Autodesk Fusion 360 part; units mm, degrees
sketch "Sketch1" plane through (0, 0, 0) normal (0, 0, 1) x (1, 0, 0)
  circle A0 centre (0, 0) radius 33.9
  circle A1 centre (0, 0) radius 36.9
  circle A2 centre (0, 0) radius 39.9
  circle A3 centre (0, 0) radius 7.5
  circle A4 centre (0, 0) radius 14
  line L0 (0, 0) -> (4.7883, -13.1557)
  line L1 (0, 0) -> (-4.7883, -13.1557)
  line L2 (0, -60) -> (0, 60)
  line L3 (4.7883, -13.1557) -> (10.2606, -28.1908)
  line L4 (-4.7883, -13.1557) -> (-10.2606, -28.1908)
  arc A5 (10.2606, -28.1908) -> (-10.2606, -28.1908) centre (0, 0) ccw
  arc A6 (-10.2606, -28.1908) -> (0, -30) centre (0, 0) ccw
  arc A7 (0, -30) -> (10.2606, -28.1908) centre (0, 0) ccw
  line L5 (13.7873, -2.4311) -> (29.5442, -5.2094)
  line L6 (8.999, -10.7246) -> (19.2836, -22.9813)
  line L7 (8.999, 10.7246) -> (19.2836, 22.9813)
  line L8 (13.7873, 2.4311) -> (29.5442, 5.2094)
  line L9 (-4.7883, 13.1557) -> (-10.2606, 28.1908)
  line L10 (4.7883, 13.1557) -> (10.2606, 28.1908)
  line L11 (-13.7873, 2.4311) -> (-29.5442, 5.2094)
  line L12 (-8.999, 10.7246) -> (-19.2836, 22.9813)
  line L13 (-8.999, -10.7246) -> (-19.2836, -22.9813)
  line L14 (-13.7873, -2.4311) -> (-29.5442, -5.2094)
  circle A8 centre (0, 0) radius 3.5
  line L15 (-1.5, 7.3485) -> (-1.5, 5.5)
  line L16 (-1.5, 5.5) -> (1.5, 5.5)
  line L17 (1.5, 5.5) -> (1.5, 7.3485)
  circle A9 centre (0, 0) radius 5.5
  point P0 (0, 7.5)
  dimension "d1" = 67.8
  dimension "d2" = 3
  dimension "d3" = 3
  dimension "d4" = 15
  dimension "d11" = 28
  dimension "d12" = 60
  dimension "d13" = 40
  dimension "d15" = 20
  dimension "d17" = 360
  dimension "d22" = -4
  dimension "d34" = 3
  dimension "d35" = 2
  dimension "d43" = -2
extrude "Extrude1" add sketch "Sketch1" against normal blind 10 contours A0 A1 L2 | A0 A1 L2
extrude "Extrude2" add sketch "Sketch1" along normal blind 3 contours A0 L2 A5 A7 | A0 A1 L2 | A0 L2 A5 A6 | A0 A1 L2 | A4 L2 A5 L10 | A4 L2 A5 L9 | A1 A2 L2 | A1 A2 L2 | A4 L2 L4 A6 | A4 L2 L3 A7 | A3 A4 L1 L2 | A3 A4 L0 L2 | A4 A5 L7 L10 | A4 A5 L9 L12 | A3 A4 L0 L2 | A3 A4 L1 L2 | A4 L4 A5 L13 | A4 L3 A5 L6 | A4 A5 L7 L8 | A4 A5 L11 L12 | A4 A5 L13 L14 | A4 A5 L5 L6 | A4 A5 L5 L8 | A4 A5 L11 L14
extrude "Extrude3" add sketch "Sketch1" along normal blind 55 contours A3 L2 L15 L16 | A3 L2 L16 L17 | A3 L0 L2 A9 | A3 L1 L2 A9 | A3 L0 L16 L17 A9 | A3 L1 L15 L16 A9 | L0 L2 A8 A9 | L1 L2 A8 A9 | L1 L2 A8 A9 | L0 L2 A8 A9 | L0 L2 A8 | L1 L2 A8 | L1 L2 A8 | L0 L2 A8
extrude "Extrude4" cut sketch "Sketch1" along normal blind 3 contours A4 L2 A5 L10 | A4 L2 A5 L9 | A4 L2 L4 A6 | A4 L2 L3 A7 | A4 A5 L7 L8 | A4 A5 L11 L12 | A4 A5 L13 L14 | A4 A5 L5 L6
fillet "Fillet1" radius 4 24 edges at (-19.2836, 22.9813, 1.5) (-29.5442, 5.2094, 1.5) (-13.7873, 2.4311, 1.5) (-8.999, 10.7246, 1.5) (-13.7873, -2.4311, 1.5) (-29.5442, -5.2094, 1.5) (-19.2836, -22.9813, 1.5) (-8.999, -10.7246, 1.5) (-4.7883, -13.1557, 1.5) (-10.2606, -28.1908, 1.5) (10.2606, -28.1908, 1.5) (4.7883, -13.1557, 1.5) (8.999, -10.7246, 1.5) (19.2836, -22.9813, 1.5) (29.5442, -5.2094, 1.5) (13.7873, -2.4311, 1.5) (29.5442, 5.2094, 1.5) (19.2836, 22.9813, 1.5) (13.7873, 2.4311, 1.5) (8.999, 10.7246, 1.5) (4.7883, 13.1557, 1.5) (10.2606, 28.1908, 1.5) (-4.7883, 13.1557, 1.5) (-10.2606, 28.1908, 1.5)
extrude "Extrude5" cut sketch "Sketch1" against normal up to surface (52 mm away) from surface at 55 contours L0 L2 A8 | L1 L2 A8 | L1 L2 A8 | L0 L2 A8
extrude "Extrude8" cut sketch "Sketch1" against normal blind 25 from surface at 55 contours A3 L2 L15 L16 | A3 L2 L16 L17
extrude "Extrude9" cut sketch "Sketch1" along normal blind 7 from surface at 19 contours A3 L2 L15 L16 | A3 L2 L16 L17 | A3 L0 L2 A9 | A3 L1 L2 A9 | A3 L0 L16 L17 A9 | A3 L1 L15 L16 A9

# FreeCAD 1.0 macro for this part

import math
import FreeCAD as App
import Part
import Sketcher

V = App.Vector
Q = App.Units.Quantity


def edges_at(feature, points):
    """Names of the edges that pass closest to the given points."""
    edges = feature.Shape.Edges
    near = lambda p: min(range(len(edges)), key=lambda i: edges[i].distToShape(Part.Vertex(*p))[0])
    return sorted({f"Edge{near(p) + 1}" for p in points})

doc = App.newDocument("Part")
params = doc.addObject("Spreadsheet::Sheet", "Params")
for row, (alias, value) in enumerate([
    ("sketch1_diameter", "67.8 mm"),
    ("sketch1_diameter2", "73.8 mm"),
    ("pad1_length", "10 mm"),
    ("sketch2_diameter", "15 mm"),
    ("sketch2_diameter2", "79.8 mm"),
    ("pad2_length", "3 mm"),
    ("sketch3_diameter", "15 mm"),
    ("pad3_length", "55 mm"),
    ("sketch4_radius", "30 mm"),
    ("sketch4_radius2", "14 mm"),
    ("pocket1_length", "3 mm"),
    ("fillet_radius", "4 mm"),
    ("sketch5_diameter", "7 mm"),
    ("pocket2_length", "52 mm"),
    ("sketch6_radius", "7.5 mm"),
    ("sketch6_width", "3 mm"),
    ("pocket3_length", "25 mm"),
    ("sketch7_diameter", "15 mm"),
    ("sketch7_diameter2", "11 mm"),
    ("pocket4_length", "7 mm"),
], start=1):
    params.set(f"A{row}", alias)
    params.set(f"B{row}", "=" + value)
    params.setAlias(f"B{row}", alias)

body = doc.addObject("PartDesign::Body", "Body")

# Sketch on XY plane
sketch1 = body.newObject("Sketcher::SketchObject", "Sketch")
sketch1.AttachmentSupport = (doc.getObject("XY_Plane"), [""])
sketch1.MapMode = "FlatFace"
sketch1.addGeometry([
    Part.Circle(V(0, 0, 0), V(0, 0, 1), 36.9),
    Part.Circle(V(0, 0, 0), V(0, 0, 1), 33.9),
], False)
sketch1.addConstraint([
    Sketcher.Constraint("Coincident", 0, 3, -1, 1),
    Sketcher.Constraint("Coincident", 1, 3, -1, 1),
    Sketcher.Constraint("Diameter", 1, 67.8),
    Sketcher.Constraint("Diameter", 0, 73.8),
])
sketch1.setExpression("Constraints[2]", "Params.sketch1_diameter")
sketch1.setExpression("Constraints[3]", "Params.sketch1_diameter2")
pad1 = body.newObject("PartDesign::Pad", "Pad")
pad1.Profile = sketch1
pad1.setExpression("Length", "Params.pad1_length")
pad1.Reversed = True

# Sketch on XY plane
sketch2 = body.newObject("Sketcher::SketchObject", "Sketch001")
sketch2.AttachmentSupport = (doc.getObject("XY_Plane"), [""])
sketch2.MapMode = "FlatFace"
sketch2.addGeometry([
    Part.Circle(V(0, 0, 0), V(0, 0, 1), 39.9),
    Part.Circle(V(0, 0, 0), V(0, 0, 1), 7.5),
], False)
sketch2.addConstraint([
    Sketcher.Constraint("Coincident", 0, 3, -1, 1),
    Sketcher.Constraint("Coincident", 1, 3, -1, 1),
    Sketcher.Constraint("Diameter", 1, 15.0),
    Sketcher.Constraint("Diameter", 0, 79.8),
])
sketch2.setExpression("Constraints[2]", "Params.sketch2_diameter")
sketch2.setExpression("Constraints[3]", "Params.sketch2_diameter2")
pad2 = body.newObject("PartDesign::Pad", "Pad001")
pad2.Profile = sketch2
pad2.setExpression("Length", "Params.pad2_length")

# Sketch on XY plane
sketch3 = body.newObject("Sketcher::SketchObject", "Sketch002")
sketch3.AttachmentSupport = (doc.getObject("XY_Plane"), [""])
sketch3.MapMode = "FlatFace"
sketch3.addGeometry(Part.Circle(V(0, 0, 0), V(0, 0, 1), 7.5), False)
sketch3.addConstraint([
    Sketcher.Constraint("Coincident", 0, 3, -1, 1),
    Sketcher.Constraint("Diameter", 0, 15.0),
])
sketch3.setExpression("Constraints[1]", "Params.sketch3_diameter")
pad3 = body.newObject("PartDesign::Pad", "Pad002")
pad3.Profile = sketch3
pad3.setExpression("Length", "Params.pad3_length")

# Sketch on XY plane
sketch4 = body.newObject("Sketcher::SketchObject", "Sketch003")
sketch4.AttachmentSupport = (doc.getObject("XY_Plane"), [""])
sketch4.MapMode = "FlatFace"
sketch4.addGeometry([
    Part.ArcOfCircle(Part.Circle(V(0, 0, 0), V(0, 0, 1), 30.000019), math.radians(70.000022), math.radians(109.999978)),  # 0
    Part.LineSegment(V(-10.2606, 28.1908, 0), V(-4.7883, 13.1557, 0)),  # 1
    Part.ArcOfCircle(Part.Circle(V(0, 0, 0), V(0, 0, 1), 14), math.radians(69.999935), math.radians(110.000065)),  # 2
    Part.LineSegment(V(4.7883, 13.1557, 0), V(10.2606, 28.1908, 0)),  # 3
    Part.ArcOfCircle(Part.Circle(V(0, 0, 0), V(0, 0, 1), 30), math.radians(-109.999978), math.radians(-90)),  # 4
    Part.ArcOfCircle(Part.Circle(V(0, 0, 0), V(0, 0, 1), 30.000019), math.radians(-90), math.radians(-70.000022)),  # 5
    Part.LineSegment(V(10.2606, -28.1908, 0), V(4.7883, -13.1557, 0)),  # 6
    Part.ArcOfCircle(Part.Circle(V(0, 0, 0), V(0, 0, 1), 14), math.radians(-110.000065), math.radians(-69.999935)),  # 7
    Part.LineSegment(V(-4.7883, -13.1557, 0), V(-10.2606, -28.1908, 0)),  # 8
    Part.ArcOfCircle(Part.Circle(V(0, 0, 0), V(0, 0, 1), 30.000019), math.radians(9.999926), math.radians(50.000001)),  # 9
    Part.LineSegment(V(19.2836, 22.9813, 0), V(8.999, 10.7246, 0)),  # 10
    Part.ArcOfCircle(Part.Circle(V(0, 0, 0), V(0, 0, 1), 14), math.radians(10.000109), math.radians(50.000025)),  # 11
    Part.LineSegment(V(13.7873, 2.4311, 0), V(29.5442, 5.2094, 0)),  # 12
    Part.LineSegment(V(-8.999, 10.7246, 0), V(-19.2836, 22.9813, 0)),  # 13
    Part.ArcOfCircle(Part.Circle(V(0, 0, 0), V(0, 0, 1), 30.000019), math.radians(129.999999), math.radians(170.000074)),  # 14
    Part.LineSegment(V(-29.5442, 5.2094, 0), V(-13.7873, 2.4311, 0)),  # 15
    Part.ArcOfCircle(Part.Circle(V(0, 0, 0), V(0, 0, 1), 14), math.radians(129.999975), math.radians(169.999891)),  # 16
    Part.ArcOfCircle(Part.Circle(V(0, 0, 0), V(0, 0, 1), 30.000019), math.radians(-170.000074), math.radians(-129.999999)),  # 17
    Part.LineSegment(V(-19.2836, -22.9813, 0), V(-8.999, -10.7246, 0)),  # 18
    Part.ArcOfCircle(Part.Circle(V(0, 0, 0), V(0, 0, 1), 14), math.radians(-169.999891), math.radians(-129.999975)),  # 19
    Part.LineSegment(V(-13.7873, -2.4311, 0), V(-29.5442, -5.2094, 0)),  # 20
    Part.LineSegment(V(8.999, -10.7246, 0), V(19.2836, -22.9813, 0)),  # 21
    Part.ArcOfCircle(Part.Circle(V(0, 0, 0), V(0, 0, 1), 30.000019), math.radians(-50.000001), math.radians(-9.999926)),  # 22
    Part.LineSegment(V(29.5442, -5.2094, 0), V(13.7873, -2.4311, 0)),  # 23
    Part.ArcOfCircle(Part.Circle(V(0, 0, 0), V(0, 0, 1), 14), math.radians(-50.000025), math.radians(-10.000109)),  # 24
], False)
sketch4.addConstraint([
    Sketcher.Constraint("Coincident", 0, 2, 1, 1),
    Sketcher.Constraint("Coincident", 1, 2, 2, 2),
    Sketcher.Constraint("Coincident", 2, 1, 3, 1),
    Sketcher.Constraint("Coincident", 3, 2, 0, 1),
    Sketcher.Constraint("Tangent", 4, 2, 5, 1),
    Sketcher.Constraint("Coincident", 5, 2, 6, 1),
    Sketcher.Constraint("Coincident", 6, 2, 7, 2),
    Sketcher.Constraint("Coincident", 7, 1, 8, 1),
    Sketcher.Constraint("Coincident", 8, 2, 4, 1),
    Sketcher.Constraint("Coincident", 9, 2, 10, 1),
    Sketcher.Constraint("Coincident", 10, 2, 11, 2),
    Sketcher.Constraint("Coincident", 11, 1, 12, 1),
    Sketcher.Constraint("Coincident", 12, 2, 9, 1),
    Sketcher.Constraint("Coincident", 13, 2, 14, 1),
    Sketcher.Constraint("Coincident", 14, 2, 15, 1),
    Sketcher.Constraint("Coincident", 15, 2, 16, 2),
    Sketcher.Constraint("Coincident", 16, 1, 13, 1),
    Sketcher.Constraint("Coincident", 17, 2, 18, 1),
    Sketcher.Constraint("Coincident", 18, 2, 19, 2),
    Sketcher.Constraint("Coincident", 19, 1, 20, 1),
    Sketcher.Constraint("Coincident", 20, 2, 17, 1),
    Sketcher.Constraint("Coincident", 21, 2, 22, 1),
    Sketcher.Constraint("Coincident", 22, 2, 23, 1),
    Sketcher.Constraint("Coincident", 23, 2, 24, 2),
    Sketcher.Constraint("Coincident", 24, 1, 21, 1),
    Sketcher.Constraint("Coincident", 0, 3, -1, 1),
    Sketcher.Constraint("Coincident", 2, 3, -1, 1),
    Sketcher.Constraint("Coincident", 4, 3, -1, 1),
    Sketcher.Constraint("Coincident", 7, 3, -1, 1),
    Sketcher.Constraint("Coincident", 9, 3, -1, 1),
    Sketcher.Constraint("Coincident", 11, 3, -1, 1),
    Sketcher.Constraint("Coincident", 14, 3, -1, 1),
    Sketcher.Constraint("Coincident", 16, 3, -1, 1),
    Sketcher.Constraint("Coincident", 17, 3, -1, 1),
    Sketcher.Constraint("Coincident", 19, 3, -1, 1),
    Sketcher.Constraint("Coincident", 22, 3, -1, 1),
    Sketcher.Constraint("Coincident", 24, 3, -1, 1),
    Sketcher.Constraint("Equal", 0, 4),
    Sketcher.Constraint("Equal", 4, 5),
    Sketcher.Constraint("Equal", 2, 7),
    Sketcher.Constraint("Equal", 5, 9),
    Sketcher.Constraint("Equal", 7, 11),
    Sketcher.Constraint("Equal", 9, 14),
    Sketcher.Constraint("Equal", 11, 16),
    Sketcher.Constraint("Equal", 14, 17),
    Sketcher.Constraint("Equal", 16, 19),
    Sketcher.Constraint("Equal", 17, 22),
    Sketcher.Constraint("Equal", 19, 24),
    Sketcher.Constraint("PointOnObject", 4, 2, -2),
    Sketcher.Constraint("Parallel", 1, 6),
    Sketcher.Constraint("Parallel", 3, 8),
    Sketcher.Constraint("Parallel", 10, 18),
    Sketcher.Constraint("Parallel", 12, 20),
    Sketcher.Constraint("Parallel", 13, 21),
    Sketcher.Constraint("Parallel", 15, 23),
    Sketcher.Constraint("Horizontal", 1, 2, 2, 1),
    Sketcher.Constraint("Horizontal", 0, 2, 3, 2),
    Sketcher.Constraint("Horizontal", 6, 2, 7, 1),
    Sketcher.Constraint("Horizontal", 9, 2, 13, 2),
    Sketcher.Constraint("Horizontal", 12, 2, 14, 2),
    Sketcher.Constraint("Horizontal", 11, 1, 15, 2),
    Sketcher.Constraint("Horizontal", 10, 2, 16, 1),
    Sketcher.Constraint("Horizontal", 17, 2, 21, 2),
    Sketcher.Constraint("Horizontal", 20, 2, 22, 2),
    Sketcher.Constraint("Vertical", 3, 2, 5, 2),
    Sketcher.Constraint("Vertical", 13, 2, 17, 2),
    Sketcher.Constraint("Vertical", 15, 2, 19, 1),
    Sketcher.Constraint("Radius", 0, 30.0),
    Sketcher.Constraint("Radius", 2, 14.0),
    Sketcher.Constraint("Angle", 1, Q("-70 deg")),
    Sketcher.Constraint("Angle", 10, Q("-130 deg")),
    Sketcher.Constraint("Angle", 12, Q("9.9998 deg")),
    Sketcher.Constraint("DistanceX", -1, 1, 10, 2, 8.999),
    Sketcher.Constraint("DistanceY", -1, 1, 11, 1, 2.431),
    Sketcher.Constraint("DistanceX", 1, 2, 3, 2, 15.049),
])
sketch4.setExpression("Constraints[67]", "Params.sketch4_radius")
sketch4.setExpression("Constraints[68]", "Params.sketch4_radius2")
pocket1 = body.newObject("PartDesign::Pocket", "Pocket")
pocket1.Profile = sketch4
pocket1.setExpression("Length", "Params.pocket1_length")
pocket1.Reversed = True
doc.recompute()

fillet = body.newObject("PartDesign::Fillet", "Fillet")
fillet.Base = (pocket1, edges_at(pocket1, [
    (-19.284, 22.981, 1.5),
    (-29.544, 5.209, 1.5),
    (-13.787, 2.431, 1.5),
    (-8.999, 10.725, 1.5),
    (-13.787, -2.431, 1.5),
    (-29.544, -5.209, 1.5),
    (-19.284, -22.981, 1.5),
    (-8.999, -10.725, 1.5),
    (-4.788, -13.156, 1.5),
    (-10.261, -28.191, 1.5),
    (10.261, -28.191, 1.5),
    (4.788, -13.156, 1.5),
    (8.999, -10.725, 1.5),
    (19.284, -22.981, 1.5),
    (29.544, -5.209, 1.5),
    (13.787, -2.431, 1.5),
    (29.544, 5.209, 1.5),
    (19.284, 22.981, 1.5),
    (13.787, 2.431, 1.5),
    (8.999, 10.725, 1.5),
    (4.788, 13.156, 1.5),
    (10.261, 28.191, 1.5),
    (-4.788, 13.156, 1.5),
    (-10.261, 28.191, 1.5),
]))
fillet.setExpression("Radius", "Params.fillet_radius")

# Sketch on XY plane
sketch5 = body.newObject("Sketcher::SketchObject", "Sketch004")
sketch5.AttachmentSupport = (doc.getObject("XY_Plane"), [""])
sketch5.MapMode = "FlatFace"
sketch5.AttachmentOffset = App.Placement(V(0, 0, 55), App.Rotation())
sketch5.addGeometry(Part.Circle(V(0, 0, 0), V(0, 0, 1), 3.5), False)
sketch5.addConstraint([
    Sketcher.Constraint("Coincident", 0, 3, -1, 1),
    Sketcher.Constraint("Diameter", 0, 7.0),
])
sketch5.setExpression("Constraints[1]", "Params.sketch5_diameter")
pocket2 = body.newObject("PartDesign::Pocket", "Pocket001")
pocket2.Profile = sketch5
pocket2.setExpression("Length", "Params.pocket2_length")

# Sketch on XY plane
sketch6 = body.newObject("Sketcher::SketchObject", "Sketch005")
sketch6.AttachmentSupport = (doc.getObject("XY_Plane"), [""])
sketch6.MapMode = "FlatFace"
sketch6.AttachmentOffset = App.Placement(V(0, 0, 55), App.Rotation())
sketch6.addGeometry([
    Part.LineSegment(V(-1.5, 5.5, 0), V(1.5, 5.5, 0)),
    Part.LineSegment(V(1.5, 5.5, 0), V(1.5, 7.3485, 0)),
    Part.ArcOfCircle(Part.Circle(V(0, 0, 0), V(0, 0, 1), 7.5), math.radians(78.463088), math.radians(101.536912)),
    Part.LineSegment(V(-1.5, 7.3485, 0), V(-1.5, 5.5, 0)),
], False)
sketch6.addConstraint([
    Sketcher.Constraint("Coincident", 0, 2, 1, 1),
    Sketcher.Constraint("Coincident", 1, 2, 2, 1),
    Sketcher.Constraint("Coincident", 2, 2, 3, 1),
    Sketcher.Constraint("Coincident", 3, 2, 0, 1),
    Sketcher.Constraint("Horizontal", 0),
    Sketcher.Constraint("Vertical", 1),
    Sketcher.Constraint("Vertical", 3),
    Sketcher.Constraint("Coincident", 2, 3, -1, 1),
    Sketcher.Constraint("Horizontal", 1, 2, 2, 2),
    Sketcher.Constraint("Radius", 2, 7.5),
    Sketcher.Constraint("DistanceX", 0, 1, 0, 2, 3.0),
    Sketcher.Constraint("DistanceY", -1, 1, 0, 2, 5.5),
])
sketch6.setExpression("Constraints[9]", "Params.sketch6_radius")
sketch6.setExpression("Constraints[10]", "Params.sketch6_width")
pocket3 = body.newObject("PartDesign::Pocket", "Pocket002")
pocket3.Profile = sketch6
pocket3.setExpression("Length", "Params.pocket3_length")

# Sketch on XY plane
sketch7 = body.newObject("Sketcher::SketchObject", "Sketch006")
sketch7.AttachmentSupport = (doc.getObject("XY_Plane"), [""])
sketch7.MapMode = "FlatFace"
sketch7.AttachmentOffset = App.Placement(V(0, 0, 19), App.Rotation())
sketch7.addGeometry([
    Part.Circle(V(0, 0, 0), V(0, 0, 1), 7.5),
    Part.Circle(V(0, 0, 0), V(0, 0, 1), 5.5),
], False)
sketch7.addConstraint([
    Sketcher.Constraint("Coincident", 0, 3, -1, 1),
    Sketcher.Constraint("Coincident", 1, 3, -1, 1),
    Sketcher.Constraint("Diameter", 0, 15.0),
    Sketcher.Constraint("Diameter", 1, 11.0),
])
sketch7.setExpression("Constraints[2]", "Params.sketch7_diameter")
sketch7.setExpression("Constraints[3]", "Params.sketch7_diameter2")
pocket4 = body.newObject("PartDesign::Pocket", "Pocket003")
pocket4.Profile = sketch7
pocket4.setExpression("Length", "Params.pocket4_length")
pocket4.Reversed = True

doc.recompute()
